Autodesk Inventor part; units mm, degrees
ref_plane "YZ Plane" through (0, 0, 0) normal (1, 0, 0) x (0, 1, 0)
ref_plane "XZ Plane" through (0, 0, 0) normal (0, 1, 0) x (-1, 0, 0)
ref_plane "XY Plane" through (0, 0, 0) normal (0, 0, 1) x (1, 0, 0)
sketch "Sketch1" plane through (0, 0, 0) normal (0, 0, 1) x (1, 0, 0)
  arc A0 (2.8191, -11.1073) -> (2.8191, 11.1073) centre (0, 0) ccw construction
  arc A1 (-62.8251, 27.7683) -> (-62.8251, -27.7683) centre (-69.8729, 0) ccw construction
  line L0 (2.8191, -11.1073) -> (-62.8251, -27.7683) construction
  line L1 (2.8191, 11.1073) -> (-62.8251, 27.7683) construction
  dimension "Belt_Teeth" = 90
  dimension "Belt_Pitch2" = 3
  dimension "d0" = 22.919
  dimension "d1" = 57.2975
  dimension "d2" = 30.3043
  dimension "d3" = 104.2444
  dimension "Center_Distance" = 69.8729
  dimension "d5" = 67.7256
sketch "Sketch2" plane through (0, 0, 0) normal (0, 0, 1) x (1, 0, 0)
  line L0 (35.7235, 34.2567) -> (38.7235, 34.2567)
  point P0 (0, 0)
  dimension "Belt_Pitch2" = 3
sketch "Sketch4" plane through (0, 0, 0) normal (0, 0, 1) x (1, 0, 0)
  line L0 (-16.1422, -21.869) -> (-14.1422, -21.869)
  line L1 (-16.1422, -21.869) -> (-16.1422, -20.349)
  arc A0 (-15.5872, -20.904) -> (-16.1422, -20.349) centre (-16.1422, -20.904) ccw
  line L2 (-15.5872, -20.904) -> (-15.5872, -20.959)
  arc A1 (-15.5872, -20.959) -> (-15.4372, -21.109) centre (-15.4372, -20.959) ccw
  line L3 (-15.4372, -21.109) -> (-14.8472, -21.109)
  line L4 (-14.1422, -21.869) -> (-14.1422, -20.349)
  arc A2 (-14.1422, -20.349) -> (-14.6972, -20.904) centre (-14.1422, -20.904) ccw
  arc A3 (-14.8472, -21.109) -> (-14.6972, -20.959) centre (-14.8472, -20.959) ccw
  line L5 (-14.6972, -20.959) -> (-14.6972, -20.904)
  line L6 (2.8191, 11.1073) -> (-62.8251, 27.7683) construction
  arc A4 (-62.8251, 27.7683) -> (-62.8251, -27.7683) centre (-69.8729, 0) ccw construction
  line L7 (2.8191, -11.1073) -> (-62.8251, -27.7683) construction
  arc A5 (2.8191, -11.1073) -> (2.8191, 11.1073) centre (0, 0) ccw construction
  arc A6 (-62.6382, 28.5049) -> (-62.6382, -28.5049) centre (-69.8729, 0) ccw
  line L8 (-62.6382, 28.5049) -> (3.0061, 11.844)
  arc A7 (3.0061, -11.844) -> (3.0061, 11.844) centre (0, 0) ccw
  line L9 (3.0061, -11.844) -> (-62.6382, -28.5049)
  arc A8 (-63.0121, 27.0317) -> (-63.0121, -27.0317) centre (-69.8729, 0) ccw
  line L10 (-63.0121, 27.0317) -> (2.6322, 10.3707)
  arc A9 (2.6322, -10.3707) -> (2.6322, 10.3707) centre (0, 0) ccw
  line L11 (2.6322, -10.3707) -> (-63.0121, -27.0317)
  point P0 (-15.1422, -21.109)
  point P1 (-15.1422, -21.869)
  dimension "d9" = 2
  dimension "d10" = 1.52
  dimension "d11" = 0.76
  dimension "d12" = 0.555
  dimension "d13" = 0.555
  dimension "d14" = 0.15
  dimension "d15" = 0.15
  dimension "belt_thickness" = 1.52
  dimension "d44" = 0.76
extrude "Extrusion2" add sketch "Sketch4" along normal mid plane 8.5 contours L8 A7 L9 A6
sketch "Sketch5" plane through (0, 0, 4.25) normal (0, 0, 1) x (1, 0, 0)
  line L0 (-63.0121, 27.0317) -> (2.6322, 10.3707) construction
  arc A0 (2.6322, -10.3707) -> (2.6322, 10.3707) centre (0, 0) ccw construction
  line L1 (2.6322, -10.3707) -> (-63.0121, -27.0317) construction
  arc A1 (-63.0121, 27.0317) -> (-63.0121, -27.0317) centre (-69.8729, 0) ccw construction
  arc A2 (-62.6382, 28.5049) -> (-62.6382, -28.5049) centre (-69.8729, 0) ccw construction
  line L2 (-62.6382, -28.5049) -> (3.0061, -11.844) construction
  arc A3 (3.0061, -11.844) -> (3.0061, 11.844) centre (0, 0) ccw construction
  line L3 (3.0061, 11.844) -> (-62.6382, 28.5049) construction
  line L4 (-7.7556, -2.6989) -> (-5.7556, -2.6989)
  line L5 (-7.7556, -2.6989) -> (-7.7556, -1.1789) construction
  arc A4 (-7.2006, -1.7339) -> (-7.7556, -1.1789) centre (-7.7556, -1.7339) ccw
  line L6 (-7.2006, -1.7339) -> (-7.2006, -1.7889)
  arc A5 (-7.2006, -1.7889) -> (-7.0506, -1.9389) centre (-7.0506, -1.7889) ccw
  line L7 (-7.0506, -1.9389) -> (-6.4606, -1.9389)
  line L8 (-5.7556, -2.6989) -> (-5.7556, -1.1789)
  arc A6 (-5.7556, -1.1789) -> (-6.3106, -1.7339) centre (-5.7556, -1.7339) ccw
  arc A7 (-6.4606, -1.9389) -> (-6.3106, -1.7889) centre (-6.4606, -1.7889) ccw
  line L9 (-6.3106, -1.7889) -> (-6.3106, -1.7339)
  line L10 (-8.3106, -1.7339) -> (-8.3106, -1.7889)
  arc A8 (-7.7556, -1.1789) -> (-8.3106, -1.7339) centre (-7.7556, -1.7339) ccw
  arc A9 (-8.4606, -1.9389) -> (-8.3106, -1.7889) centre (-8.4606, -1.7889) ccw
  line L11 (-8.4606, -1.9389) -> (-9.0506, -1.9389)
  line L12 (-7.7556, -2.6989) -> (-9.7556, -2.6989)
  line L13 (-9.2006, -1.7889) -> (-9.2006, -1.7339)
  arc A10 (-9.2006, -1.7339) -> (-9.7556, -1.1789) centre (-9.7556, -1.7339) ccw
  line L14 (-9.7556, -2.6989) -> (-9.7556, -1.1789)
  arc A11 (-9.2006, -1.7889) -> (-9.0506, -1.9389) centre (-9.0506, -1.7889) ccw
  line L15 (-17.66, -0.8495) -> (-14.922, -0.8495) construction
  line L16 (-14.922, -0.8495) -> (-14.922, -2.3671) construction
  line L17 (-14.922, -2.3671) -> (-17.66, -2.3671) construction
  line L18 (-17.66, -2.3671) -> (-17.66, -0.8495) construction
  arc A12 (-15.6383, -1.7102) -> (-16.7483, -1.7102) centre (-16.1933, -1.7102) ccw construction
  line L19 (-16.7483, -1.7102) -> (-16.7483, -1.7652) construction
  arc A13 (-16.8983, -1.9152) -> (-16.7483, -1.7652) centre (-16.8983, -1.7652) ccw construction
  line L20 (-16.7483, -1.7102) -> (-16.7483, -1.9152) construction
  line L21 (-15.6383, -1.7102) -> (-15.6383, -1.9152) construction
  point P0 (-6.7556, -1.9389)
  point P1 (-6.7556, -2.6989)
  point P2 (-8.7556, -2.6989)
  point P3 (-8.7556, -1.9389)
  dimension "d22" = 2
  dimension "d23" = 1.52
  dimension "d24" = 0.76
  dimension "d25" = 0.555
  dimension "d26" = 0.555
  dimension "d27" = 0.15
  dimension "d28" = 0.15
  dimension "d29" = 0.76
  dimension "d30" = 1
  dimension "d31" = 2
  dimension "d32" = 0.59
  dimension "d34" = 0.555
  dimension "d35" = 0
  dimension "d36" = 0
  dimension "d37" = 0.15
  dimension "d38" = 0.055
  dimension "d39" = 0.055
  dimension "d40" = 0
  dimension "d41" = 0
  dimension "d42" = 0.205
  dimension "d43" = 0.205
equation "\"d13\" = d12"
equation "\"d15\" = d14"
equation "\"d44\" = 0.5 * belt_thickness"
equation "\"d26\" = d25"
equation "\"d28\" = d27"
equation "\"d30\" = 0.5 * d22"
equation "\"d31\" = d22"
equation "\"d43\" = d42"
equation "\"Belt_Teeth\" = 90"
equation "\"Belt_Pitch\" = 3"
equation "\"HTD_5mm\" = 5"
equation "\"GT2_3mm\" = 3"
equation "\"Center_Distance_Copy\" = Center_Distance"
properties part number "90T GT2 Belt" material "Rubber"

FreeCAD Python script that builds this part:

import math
import FreeCAD as App
import Part
import Sketcher

doc = App.newDocument("Part")
body = doc.addObject("PartDesign::Body", "Body")

# Sketch on XY plane
sketch1 = body.newObject("Sketcher::SketchObject", "Sketch")
sketch1.AttachmentSupport = (doc.getObject("XY_Plane"), [""])
sketch1.MapMode = "FlatFace"
sketch1.addGeometry(Part.LineSegment(App.Vector(3.0061, 11.844, 0), App.Vector(-62.6382, 28.5049, 0)), False)
sketch1.addGeometry(Part.ArcOfCircle(Part.Circle(App.Vector(-69.8729, 0, 0), App.Vector(0, 0, 1), 29.408676), math.radians(75.758728), math.radians(284.241272)), False)
sketch1.addGeometry(Part.LineSegment(App.Vector(-62.6382, -28.5049, 0), App.Vector(3.0061, -11.844, 0)), False)
sketch1.addGeometry(Part.ArcOfCircle(Part.Circle(App.Vector(0, 0, 0), App.Vector(0, 0, 1), 12.219532), math.radians(-75.758602), math.radians(75.758602)), False)
sketch1.addGeometry(Part.ArcOfCircle(Part.Circle(App.Vector(-69.8729, 0, 0), App.Vector(0, 0, 1), 27.888768), math.radians(75.758716), math.radians(284.241284)), False)
sketch1.addGeometry(Part.LineSegment(App.Vector(-63.0121, 27.0317, 0), App.Vector(2.6322, 10.3707, 0)), False)
sketch1.addGeometry(Part.ArcOfCircle(Part.Circle(App.Vector(0, 0, 0), App.Vector(0, 0, 1), 10.699528), math.radians(-75.75842), math.radians(75.75842)), False)
sketch1.addGeometry(Part.LineSegment(App.Vector(2.6322, -10.3707, 0), App.Vector(-63.0121, -27.0317, 0)), False)
sketch1.addConstraint(Sketcher.Constraint("Tangent", 0, 2, 1, 1))
sketch1.addConstraint(Sketcher.Constraint("Tangent", 1, 2, 2, 1))
sketch1.addConstraint(Sketcher.Constraint("Tangent", 2, 2, 3, 1))
sketch1.addConstraint(Sketcher.Constraint("Tangent", 3, 2, 0, 1))
sketch1.addConstraint(Sketcher.Constraint("Tangent", 4, 1, 5, 1))
sketch1.addConstraint(Sketcher.Constraint("Tangent", 5, 2, 6, 2))
sketch1.addConstraint(Sketcher.Constraint("Tangent", 6, 1, 7, 1))
sketch1.addConstraint(Sketcher.Constraint("Tangent", 7, 2, 4, 2))
sketch1.addConstraint(Sketcher.Constraint("Coincident", 3, 3, -1, 1))
sketch1.addConstraint(Sketcher.Constraint("Coincident", 6, 3, -1, 1))
sketch1.addConstraint(Sketcher.Constraint("Coincident", 4, 3, 1, 3))
sketch1.addConstraint(Sketcher.Constraint("PointOnObject", 1, 3, -1))
sketch1.addConstraint(Sketcher.Constraint("Parallel", 0, 5))
sketch1.addConstraint(Sketcher.Constraint("Radius", 1, 29.4087))
sketch1.addConstraint(Sketcher.Constraint("Radius", 3, 12.2195))
sketch1.addConstraint(Sketcher.Constraint("Radius", 4, 27.8888))
sketch1.addConstraint(Sketcher.Constraint("DistanceX", 1, 3, -1, 1, 69.873))
pad1 = body.newObject("PartDesign::Pad", "Pad")
pad1.Profile = sketch1
pad1.Length = 8.5
pad1.Midplane = True

doc.recompute()
